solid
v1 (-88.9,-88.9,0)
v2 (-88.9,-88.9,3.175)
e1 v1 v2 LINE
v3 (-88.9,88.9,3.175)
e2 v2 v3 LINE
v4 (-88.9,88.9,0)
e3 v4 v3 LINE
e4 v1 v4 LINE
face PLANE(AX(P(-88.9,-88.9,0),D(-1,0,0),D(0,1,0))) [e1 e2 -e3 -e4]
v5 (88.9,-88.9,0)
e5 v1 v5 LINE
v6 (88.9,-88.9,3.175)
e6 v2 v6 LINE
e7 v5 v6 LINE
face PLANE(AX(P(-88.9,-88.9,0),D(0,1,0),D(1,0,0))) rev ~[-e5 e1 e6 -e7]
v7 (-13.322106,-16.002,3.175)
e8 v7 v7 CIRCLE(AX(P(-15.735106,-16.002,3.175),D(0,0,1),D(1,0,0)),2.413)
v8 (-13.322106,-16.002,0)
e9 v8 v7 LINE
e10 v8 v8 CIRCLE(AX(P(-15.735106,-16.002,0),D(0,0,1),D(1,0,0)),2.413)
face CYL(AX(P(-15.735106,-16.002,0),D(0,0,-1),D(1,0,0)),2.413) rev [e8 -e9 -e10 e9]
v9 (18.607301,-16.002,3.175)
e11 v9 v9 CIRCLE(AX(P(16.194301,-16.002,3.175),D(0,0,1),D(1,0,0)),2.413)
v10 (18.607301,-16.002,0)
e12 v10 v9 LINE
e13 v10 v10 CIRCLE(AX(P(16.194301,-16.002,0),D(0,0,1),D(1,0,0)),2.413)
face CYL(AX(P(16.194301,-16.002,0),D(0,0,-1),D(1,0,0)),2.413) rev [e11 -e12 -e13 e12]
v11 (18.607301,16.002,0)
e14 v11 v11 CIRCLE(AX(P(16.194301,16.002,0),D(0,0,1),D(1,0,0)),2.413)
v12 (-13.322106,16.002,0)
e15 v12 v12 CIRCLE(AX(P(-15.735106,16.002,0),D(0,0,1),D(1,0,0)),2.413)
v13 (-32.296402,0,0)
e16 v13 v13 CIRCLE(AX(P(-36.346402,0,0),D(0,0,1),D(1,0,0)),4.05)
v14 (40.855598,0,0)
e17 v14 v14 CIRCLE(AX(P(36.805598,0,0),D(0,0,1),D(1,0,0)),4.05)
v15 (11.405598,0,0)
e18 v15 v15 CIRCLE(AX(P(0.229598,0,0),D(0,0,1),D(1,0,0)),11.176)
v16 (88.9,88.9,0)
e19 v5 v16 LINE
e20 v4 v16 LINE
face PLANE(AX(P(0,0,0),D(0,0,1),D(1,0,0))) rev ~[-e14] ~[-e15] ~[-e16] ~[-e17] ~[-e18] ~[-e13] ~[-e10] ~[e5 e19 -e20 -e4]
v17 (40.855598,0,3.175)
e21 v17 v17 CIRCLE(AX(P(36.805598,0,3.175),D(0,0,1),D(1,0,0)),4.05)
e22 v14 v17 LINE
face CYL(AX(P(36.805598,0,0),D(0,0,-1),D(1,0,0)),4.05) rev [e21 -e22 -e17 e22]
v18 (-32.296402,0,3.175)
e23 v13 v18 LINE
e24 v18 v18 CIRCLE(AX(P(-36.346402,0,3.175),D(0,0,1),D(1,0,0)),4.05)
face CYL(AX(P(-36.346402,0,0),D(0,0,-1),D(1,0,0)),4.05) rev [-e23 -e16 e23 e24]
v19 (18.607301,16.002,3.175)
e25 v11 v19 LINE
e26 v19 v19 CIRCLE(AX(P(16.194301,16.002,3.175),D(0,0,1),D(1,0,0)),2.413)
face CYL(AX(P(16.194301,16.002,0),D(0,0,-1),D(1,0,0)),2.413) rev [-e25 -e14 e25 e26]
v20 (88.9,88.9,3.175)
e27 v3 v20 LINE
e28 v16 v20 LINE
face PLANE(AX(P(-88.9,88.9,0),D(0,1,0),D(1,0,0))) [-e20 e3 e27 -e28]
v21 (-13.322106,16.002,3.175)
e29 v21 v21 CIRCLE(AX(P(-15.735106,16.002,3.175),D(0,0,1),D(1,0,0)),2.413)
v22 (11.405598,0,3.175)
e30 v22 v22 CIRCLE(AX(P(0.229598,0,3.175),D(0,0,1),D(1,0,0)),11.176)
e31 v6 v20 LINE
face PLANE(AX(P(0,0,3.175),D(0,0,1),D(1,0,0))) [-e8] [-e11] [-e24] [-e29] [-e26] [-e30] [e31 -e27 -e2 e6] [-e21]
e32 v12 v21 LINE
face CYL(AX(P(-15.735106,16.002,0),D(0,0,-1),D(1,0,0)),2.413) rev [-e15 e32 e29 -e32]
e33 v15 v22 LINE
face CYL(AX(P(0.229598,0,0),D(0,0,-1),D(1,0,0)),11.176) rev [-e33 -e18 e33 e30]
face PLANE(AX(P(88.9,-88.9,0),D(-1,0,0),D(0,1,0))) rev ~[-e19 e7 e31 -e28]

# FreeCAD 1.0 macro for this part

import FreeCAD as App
import Part
import Sketcher
from FreeCAD import Vector
Q = App.Units.Quantity

doc = App.newDocument("Part")
body = doc.addObject("PartDesign::Body", "Body")

# Sketch on XY plane
sketch1 = body.newObject("Sketcher::SketchObject", "Sketch")
sketch1.AttachmentSupport = (doc.getObject("XY_Plane"), [""])
sketch1.MapMode = "FlatFace"
sketch1.addGeometry(Part.LineSegment(Vector(-88.9, 88.9, 0), Vector(-88.9, -88.9, 0)), False)
sketch1.addGeometry(Part.LineSegment(Vector(-88.9, -88.9, 0), Vector(88.9, -88.9, 0)), False)
sketch1.addGeometry(Part.LineSegment(Vector(88.9, -88.9, 0), Vector(88.9, 88.9, 0)), False)
sketch1.addGeometry(Part.LineSegment(Vector(88.9, 88.9, 0), Vector(-88.9, 88.9, 0)), False)
sketch1.addGeometry(Part.Circle(Vector(-15.735106, -16.002, 0), Vector(0, 0, 1), 2.413), False)
sketch1.addGeometry(Part.Circle(Vector(-36.346402, 0, 0), Vector(0, 0, 1), 4.05), False)
sketch1.addGeometry(Part.Circle(Vector(0.229598, 0, 0), Vector(0, 0, 1), 11.176), False)
sketch1.addGeometry(Part.Circle(Vector(16.194301, -16.002, 0), Vector(0, 0, 1), 2.413), False)
sketch1.addGeometry(Part.Circle(Vector(36.805598, 0, 0), Vector(0, 0, 1), 4.05), False)
sketch1.addGeometry(Part.Circle(Vector(-15.735106, 16.002, 0), Vector(0, 0, 1), 2.413), False)
sketch1.addGeometry(Part.Circle(Vector(16.194301, 16.002, 0), Vector(0, 0, 1), 2.413), False)
sketch1.addConstraint(Sketcher.Constraint("Coincident", 0, 2, 1, 1))
sketch1.addConstraint(Sketcher.Constraint("Coincident", 1, 2, 2, 1))
sketch1.addConstraint(Sketcher.Constraint("Coincident", 2, 2, 3, 1))
sketch1.addConstraint(Sketcher.Constraint("Coincident", 3, 2, 0, 1))
sketch1.addConstraint(Sketcher.Constraint("Vertical", 0))
sketch1.addConstraint(Sketcher.Constraint("Horizontal", 1))
sketch1.addConstraint(Sketcher.Constraint("Vertical", 2))
sketch1.addConstraint(Sketcher.Constraint("Horizontal", 3))
sketch1.addConstraint(Sketcher.Constraint("Equal", 4, 7))
sketch1.addConstraint(Sketcher.Constraint("Equal", 5, 8))
sketch1.addConstraint(Sketcher.Constraint("Equal", 7, 9))
sketch1.addConstraint(Sketcher.Constraint("Equal", 9, 10))
sketch1.addConstraint(Sketcher.Constraint("Symmetric", 0, 2, 2, 2, -1, 1))
sketch1.addConstraint(Sketcher.Constraint("Symmetric", 4, 3, 9, 3, -1))
sketch1.addConstraint(Sketcher.Constraint("Symmetric", 7, 3, 10, 3, -1))
sketch1.addConstraint(Sketcher.Constraint("PointOnObject", 5, 3, -1))
sketch1.addConstraint(Sketcher.Constraint("PointOnObject", 6, 3, -1))
sketch1.addConstraint(Sketcher.Constraint("PointOnObject", 8, 3, -1))
sketch1.addConstraint(Sketcher.Constraint("Horizontal", 4, 3, 7, 3))
sketch1.addConstraint(Sketcher.Constraint("Equal", 3, 0))
sketch1.addConstraint(Sketcher.Constraint("Diameter", 4, Q("0.19 in")))
sketch1.addConstraint(Sketcher.Constraint("Diameter", 6, Q("0.88 in")))
sketch1.addConstraint(Sketcher.Constraint("DistanceX", 1, 1, 1, 2, Q("7 in")))
sketch1.addConstraint(Sketcher.Constraint("Diameter", 5, Q("8.1 mm")))
sketch1.addConstraint(Sketcher.Constraint("DistanceY", 4, 3, -1, 1, Q("0.63 in")))
sketch1.addConstraint(Sketcher.Constraint("DistanceX", 5, 3, 6, 3, Q("1.44 in")))
sketch1.addConstraint(Sketcher.Constraint("DistanceX", 6, 3, 8, 3, Q("1.44 in")))
sketch1.addConstraint(Sketcher.Constraint("DistanceX", 5, 3, -1, 1, Q("36.346402 mm")))
sketch1.addConstraint(Sketcher.Constraint("DistanceX", -1, 1, 7, 3, Q("16.194301 mm")))
sketch1.addConstraint(Sketcher.Constraint("DistanceX", 4, 3, -1, 1, Q("15.735106 mm")))
pad1 = body.newObject("PartDesign::Pad", "Pad")
pad1.Profile = sketch1
pad1.Length = Q("0.125 in")

doc.recompute()
